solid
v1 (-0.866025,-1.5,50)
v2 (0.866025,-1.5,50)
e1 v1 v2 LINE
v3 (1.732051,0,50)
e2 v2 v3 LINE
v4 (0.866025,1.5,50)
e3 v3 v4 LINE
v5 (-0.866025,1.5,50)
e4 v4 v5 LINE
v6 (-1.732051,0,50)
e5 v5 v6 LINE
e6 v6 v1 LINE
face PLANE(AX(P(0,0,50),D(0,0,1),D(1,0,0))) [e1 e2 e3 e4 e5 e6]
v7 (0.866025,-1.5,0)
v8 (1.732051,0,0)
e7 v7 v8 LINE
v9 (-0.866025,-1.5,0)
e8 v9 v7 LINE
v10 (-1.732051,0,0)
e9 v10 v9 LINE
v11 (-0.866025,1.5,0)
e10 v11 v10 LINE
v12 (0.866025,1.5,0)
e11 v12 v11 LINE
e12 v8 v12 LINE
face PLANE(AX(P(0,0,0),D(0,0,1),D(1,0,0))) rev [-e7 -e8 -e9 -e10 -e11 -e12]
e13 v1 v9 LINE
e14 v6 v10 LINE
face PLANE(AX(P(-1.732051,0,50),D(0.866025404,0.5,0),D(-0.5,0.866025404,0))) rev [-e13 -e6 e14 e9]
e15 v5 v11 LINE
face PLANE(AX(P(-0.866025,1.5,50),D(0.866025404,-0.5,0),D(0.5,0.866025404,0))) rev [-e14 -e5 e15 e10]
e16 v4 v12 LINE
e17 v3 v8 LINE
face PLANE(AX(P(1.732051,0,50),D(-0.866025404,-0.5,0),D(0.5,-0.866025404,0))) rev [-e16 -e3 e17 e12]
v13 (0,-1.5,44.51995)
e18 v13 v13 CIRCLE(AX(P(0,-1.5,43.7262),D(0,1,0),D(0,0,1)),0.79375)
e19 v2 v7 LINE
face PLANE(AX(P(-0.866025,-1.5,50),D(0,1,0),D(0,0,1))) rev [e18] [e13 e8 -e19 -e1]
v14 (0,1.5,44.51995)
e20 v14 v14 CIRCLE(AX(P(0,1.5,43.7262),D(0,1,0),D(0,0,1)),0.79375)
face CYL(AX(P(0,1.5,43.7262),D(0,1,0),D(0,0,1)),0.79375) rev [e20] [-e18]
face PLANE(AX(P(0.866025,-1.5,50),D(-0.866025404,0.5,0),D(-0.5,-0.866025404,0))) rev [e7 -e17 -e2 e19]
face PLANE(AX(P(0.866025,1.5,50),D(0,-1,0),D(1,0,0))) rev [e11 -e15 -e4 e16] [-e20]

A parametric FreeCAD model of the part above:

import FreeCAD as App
import Part
import Sketcher
from FreeCAD import Vector
Q = App.Units.Quantity

doc = App.newDocument("Part")
body = doc.addObject("PartDesign::Body", "Body")

sketch1 = doc.addObject("Sketcher::SketchObject", "Sketch")
body.addObject(sketch1)
sketch1.AttachmentSupport = (doc.XY_Plane, [""])
sketch1.MapMode = "FlatFace"
sketch1.addGeometry([
    Part.LineSegment(Vector(1.732051, 0, 0), Vector(0.866025, 1.5, 0)),
    Part.LineSegment(Vector(0.866025, 1.5, 0), Vector(-0.866025, 1.5, 0)),
    Part.LineSegment(Vector(-0.866025, 1.5, 0), Vector(-1.732051, 0, 0)),
    Part.LineSegment(Vector(-1.732051, 0, 0), Vector(-0.866025, -1.5, 0)),
    Part.LineSegment(Vector(-0.866025, -1.5, 0), Vector(0.866025, -1.5, 0)),
    Part.LineSegment(Vector(0.866025, -1.5, 0), Vector(1.732051, 0, 0)),
], False)
sketch1.addConstraint([
    Sketcher.Constraint("Coincident", 0, 2, 1, 1),
    Sketcher.Constraint("Coincident", 1, 2, 2, 1),
    Sketcher.Constraint("Coincident", 2, 2, 3, 1),
    Sketcher.Constraint("Coincident", 3, 2, 4, 1),
    Sketcher.Constraint("Coincident", 4, 2, 5, 1),
    Sketcher.Constraint("Coincident", 5, 2, 0, 1),
    Sketcher.Constraint("Horizontal", 1),
    Sketcher.Constraint("Horizontal", 4),
    Sketcher.Constraint("Symmetric", 0, 2, 3, 2, -1, 1),
    Sketcher.Constraint("Symmetric", 2, 2, 5, 2, -1, 1),
    Sketcher.Constraint("PointOnObject", 2, 2, -1),
    Sketcher.Constraint("Parallel", 2, 5),
    Sketcher.Constraint("Vertical", 1, 2, 3, 2),
    Sketcher.Constraint("Angle", 0, Q("120 deg")),
    Sketcher.Constraint("DistanceY", 3, 2, 1, 2, 3.0),
    Sketcher.Constraint("DistanceX", 1, 2, 1, 1, 1.732051),
])
pad1 = doc.addObject("PartDesign::Pad", "Pad")
body.addObject(pad1)
pad1.Profile = sketch1
pad1.Length = 50

sketch2 = doc.addObject("Sketcher::SketchObject", "Sketch001")
body.addObject(sketch2)
sketch2.AttachmentSupport = (doc.XZ_Plane, [""])
sketch2.MapMode = "FlatFace"
sketch2.AttachmentOffset = App.Placement(Vector(0, 0, -1.5), App.Rotation())
sketch2.addGeometry(Part.Circle(Vector(0, 43.7262, 0), Vector(0, 0, 1), 0.79375), False)
sketch2.addConstraint([
    Sketcher.Constraint("PointOnObject", 0, 3, -2),
    Sketcher.Constraint("Diameter", 0, 1.5875),
    Sketcher.Constraint("DistanceY", -1, 1, 0, 3, 43.7262),
])
doc.recompute()
hole = doc.addObject("PartDesign::Hole", "Hole")
body.addObject(hole)
hole.Profile = sketch2
hole.ThreadType = "None"
hole.Diameter = 1.5875
hole.DepthType = "ThroughAll"
hole.Reversed = True

doc.recompute()
